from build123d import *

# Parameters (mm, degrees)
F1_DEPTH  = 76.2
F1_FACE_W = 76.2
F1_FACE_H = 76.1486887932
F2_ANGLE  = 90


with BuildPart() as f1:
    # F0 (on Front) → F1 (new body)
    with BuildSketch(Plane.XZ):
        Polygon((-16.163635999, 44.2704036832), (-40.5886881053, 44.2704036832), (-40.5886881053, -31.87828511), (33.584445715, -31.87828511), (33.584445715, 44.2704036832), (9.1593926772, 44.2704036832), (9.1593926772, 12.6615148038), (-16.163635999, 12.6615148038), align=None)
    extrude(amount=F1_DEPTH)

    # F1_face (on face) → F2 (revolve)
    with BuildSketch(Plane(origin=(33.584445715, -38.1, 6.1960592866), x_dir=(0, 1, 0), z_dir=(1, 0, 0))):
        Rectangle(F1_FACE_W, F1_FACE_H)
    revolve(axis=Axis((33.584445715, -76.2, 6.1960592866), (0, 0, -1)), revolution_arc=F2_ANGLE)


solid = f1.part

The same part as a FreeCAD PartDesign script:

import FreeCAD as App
import Part
import Sketcher
from FreeCAD import Vector
Q = App.Units.Quantity

doc = App.newDocument("Part")
body = doc.addObject("PartDesign::Body", "Body")

# Sketch on XZ plane
sketch1 = body.newObject("Sketcher::SketchObject", "Sketch")
sketch1.AttachmentSupport = (doc.getObject("XZ_Plane"), [""])
sketch1.MapMode = "FlatFace"
sketch1.addGeometry([
    Part.LineSegment(Vector(-16, 44, 0), Vector(-41, 44, 0)),  # 0
    Part.LineSegment(Vector(-41, 44, 0), Vector(-41, -32, 0)),  # 1
    Part.LineSegment(Vector(-41, -32, 0), Vector(34, -32, 0)),  # 2
    Part.LineSegment(Vector(34, -32, 0), Vector(34, 44, 0)),  # 3
    Part.LineSegment(Vector(34, 44, 0), Vector(9, 44, 0)),  # 4
    Part.LineSegment(Vector(9, 44, 0), Vector(9, 13, 0)),  # 5
    Part.LineSegment(Vector(9, 13, 0), Vector(-16, 13, 0)),  # 6
    Part.LineSegment(Vector(-16, 13, 0), Vector(-16, 44, 0)),  # 7
], False)
sketch1.addConstraint([
    Sketcher.Constraint("Coincident", 0, 2, 1, 1),
    Sketcher.Constraint("Coincident", 1, 2, 2, 1),
    Sketcher.Constraint("Coincident", 2, 2, 3, 1),
    Sketcher.Constraint("Coincident", 3, 2, 4, 1),
    Sketcher.Constraint("Coincident", 4, 2, 5, 1),
    Sketcher.Constraint("Coincident", 5, 2, 6, 1),
    Sketcher.Constraint("Coincident", 6, 2, 7, 1),
    Sketcher.Constraint("Coincident", 7, 2, 0, 1),
    Sketcher.Constraint("Horizontal", 0),
    Sketcher.Constraint("Vertical", 1),
    Sketcher.Constraint("Horizontal", 2),
    Sketcher.Constraint("Vertical", 3),
    Sketcher.Constraint("Horizontal", 4),
    Sketcher.Constraint("Vertical", 5),
    Sketcher.Constraint("Horizontal", 6),
    Sketcher.Constraint("Vertical", 7),
    Sketcher.Constraint("Horizontal", 0, 2, 3, 2),
    Sketcher.Constraint("Equal", 0, 4),
    Sketcher.Constraint("DistanceX", 6, 2, 6, 1, 25.323029),
    Sketcher.Constraint("DistanceY", 1, 2, 1, 1, 76.148689),
    Sketcher.Constraint("DistanceY", 5, 2, 5, 1, 31.608889),
    Sketcher.Constraint("DistanceX", 0, 2, 0, 1, 24.425052),
    Sketcher.Constraint("DistanceX", 0, 2, -1, 1, 40.588688),
    Sketcher.Constraint("DistanceY", -1, 1, 0, 2, 44.270404),
])
pad1 = body.newObject("PartDesign::Pad", "Pad")
pad1.Profile = sketch1
pad1.Length = Q("3 in")

# Sketch on YZ plane
sketch2 = body.newObject("Sketcher::SketchObject", "Sketch001")
sketch2.AttachmentSupport = (doc.getObject("YZ_Plane"), [""])
sketch2.MapMode = "FlatFace"
sketch2.AttachmentOffset = App.Placement(Vector(0, 0, 33.584446), App.Rotation())
sketch2.addGeometry([
    Part.LineSegment(Vector(-76, 44, 0), Vector(-76, -32, 0)),
    Part.LineSegment(Vector(-76, -32, 0), Vector(0, -32, 0)),
    Part.LineSegment(Vector(0, -32, 0), Vector(0, 44, 0)),
    Part.LineSegment(Vector(0, 44, 0), Vector(-76, 44, 0)),
], False)
sketch2.addGeometry(Part.LineSegment(Vector(-76, 44, 0), Vector(-76, -32, 0)), True)  # axis
sketch2.addConstraint([
    Sketcher.Constraint("Coincident", 0, 2, 1, 1),
    Sketcher.Constraint("Coincident", 1, 2, 2, 1),
    Sketcher.Constraint("Coincident", 2, 2, 3, 1),
    Sketcher.Constraint("Coincident", 3, 2, 0, 1),
    Sketcher.Constraint("Vertical", 0),
    Sketcher.Constraint("Horizontal", 1),
    Sketcher.Constraint("Vertical", 2),
    Sketcher.Constraint("Horizontal", 3),
    Sketcher.Constraint("Vertical", 4),
    Sketcher.Constraint("Coincident", 4, 1, 3, 2),
    Sketcher.Constraint("PointOnObject", 1, 2, -2),
    Sketcher.Constraint("Horizontal", 1, 2, 4, 2),
    Sketcher.Constraint("DistanceX", 1, 1, 1, 2, Q("3 in")),
    Sketcher.Constraint("DistanceY", 0, 2, 0, 1, 76.148689),
    Sketcher.Constraint("DistanceY", 0, 2, -1, 1, 31.878285),
])
revolution = body.newObject("PartDesign::Revolution", "Revolution")
revolution.Profile = sketch2
revolution.ReferenceAxis = (sketch2, ["Axis0"])
revolution.Angle = 90

doc.recompute()
